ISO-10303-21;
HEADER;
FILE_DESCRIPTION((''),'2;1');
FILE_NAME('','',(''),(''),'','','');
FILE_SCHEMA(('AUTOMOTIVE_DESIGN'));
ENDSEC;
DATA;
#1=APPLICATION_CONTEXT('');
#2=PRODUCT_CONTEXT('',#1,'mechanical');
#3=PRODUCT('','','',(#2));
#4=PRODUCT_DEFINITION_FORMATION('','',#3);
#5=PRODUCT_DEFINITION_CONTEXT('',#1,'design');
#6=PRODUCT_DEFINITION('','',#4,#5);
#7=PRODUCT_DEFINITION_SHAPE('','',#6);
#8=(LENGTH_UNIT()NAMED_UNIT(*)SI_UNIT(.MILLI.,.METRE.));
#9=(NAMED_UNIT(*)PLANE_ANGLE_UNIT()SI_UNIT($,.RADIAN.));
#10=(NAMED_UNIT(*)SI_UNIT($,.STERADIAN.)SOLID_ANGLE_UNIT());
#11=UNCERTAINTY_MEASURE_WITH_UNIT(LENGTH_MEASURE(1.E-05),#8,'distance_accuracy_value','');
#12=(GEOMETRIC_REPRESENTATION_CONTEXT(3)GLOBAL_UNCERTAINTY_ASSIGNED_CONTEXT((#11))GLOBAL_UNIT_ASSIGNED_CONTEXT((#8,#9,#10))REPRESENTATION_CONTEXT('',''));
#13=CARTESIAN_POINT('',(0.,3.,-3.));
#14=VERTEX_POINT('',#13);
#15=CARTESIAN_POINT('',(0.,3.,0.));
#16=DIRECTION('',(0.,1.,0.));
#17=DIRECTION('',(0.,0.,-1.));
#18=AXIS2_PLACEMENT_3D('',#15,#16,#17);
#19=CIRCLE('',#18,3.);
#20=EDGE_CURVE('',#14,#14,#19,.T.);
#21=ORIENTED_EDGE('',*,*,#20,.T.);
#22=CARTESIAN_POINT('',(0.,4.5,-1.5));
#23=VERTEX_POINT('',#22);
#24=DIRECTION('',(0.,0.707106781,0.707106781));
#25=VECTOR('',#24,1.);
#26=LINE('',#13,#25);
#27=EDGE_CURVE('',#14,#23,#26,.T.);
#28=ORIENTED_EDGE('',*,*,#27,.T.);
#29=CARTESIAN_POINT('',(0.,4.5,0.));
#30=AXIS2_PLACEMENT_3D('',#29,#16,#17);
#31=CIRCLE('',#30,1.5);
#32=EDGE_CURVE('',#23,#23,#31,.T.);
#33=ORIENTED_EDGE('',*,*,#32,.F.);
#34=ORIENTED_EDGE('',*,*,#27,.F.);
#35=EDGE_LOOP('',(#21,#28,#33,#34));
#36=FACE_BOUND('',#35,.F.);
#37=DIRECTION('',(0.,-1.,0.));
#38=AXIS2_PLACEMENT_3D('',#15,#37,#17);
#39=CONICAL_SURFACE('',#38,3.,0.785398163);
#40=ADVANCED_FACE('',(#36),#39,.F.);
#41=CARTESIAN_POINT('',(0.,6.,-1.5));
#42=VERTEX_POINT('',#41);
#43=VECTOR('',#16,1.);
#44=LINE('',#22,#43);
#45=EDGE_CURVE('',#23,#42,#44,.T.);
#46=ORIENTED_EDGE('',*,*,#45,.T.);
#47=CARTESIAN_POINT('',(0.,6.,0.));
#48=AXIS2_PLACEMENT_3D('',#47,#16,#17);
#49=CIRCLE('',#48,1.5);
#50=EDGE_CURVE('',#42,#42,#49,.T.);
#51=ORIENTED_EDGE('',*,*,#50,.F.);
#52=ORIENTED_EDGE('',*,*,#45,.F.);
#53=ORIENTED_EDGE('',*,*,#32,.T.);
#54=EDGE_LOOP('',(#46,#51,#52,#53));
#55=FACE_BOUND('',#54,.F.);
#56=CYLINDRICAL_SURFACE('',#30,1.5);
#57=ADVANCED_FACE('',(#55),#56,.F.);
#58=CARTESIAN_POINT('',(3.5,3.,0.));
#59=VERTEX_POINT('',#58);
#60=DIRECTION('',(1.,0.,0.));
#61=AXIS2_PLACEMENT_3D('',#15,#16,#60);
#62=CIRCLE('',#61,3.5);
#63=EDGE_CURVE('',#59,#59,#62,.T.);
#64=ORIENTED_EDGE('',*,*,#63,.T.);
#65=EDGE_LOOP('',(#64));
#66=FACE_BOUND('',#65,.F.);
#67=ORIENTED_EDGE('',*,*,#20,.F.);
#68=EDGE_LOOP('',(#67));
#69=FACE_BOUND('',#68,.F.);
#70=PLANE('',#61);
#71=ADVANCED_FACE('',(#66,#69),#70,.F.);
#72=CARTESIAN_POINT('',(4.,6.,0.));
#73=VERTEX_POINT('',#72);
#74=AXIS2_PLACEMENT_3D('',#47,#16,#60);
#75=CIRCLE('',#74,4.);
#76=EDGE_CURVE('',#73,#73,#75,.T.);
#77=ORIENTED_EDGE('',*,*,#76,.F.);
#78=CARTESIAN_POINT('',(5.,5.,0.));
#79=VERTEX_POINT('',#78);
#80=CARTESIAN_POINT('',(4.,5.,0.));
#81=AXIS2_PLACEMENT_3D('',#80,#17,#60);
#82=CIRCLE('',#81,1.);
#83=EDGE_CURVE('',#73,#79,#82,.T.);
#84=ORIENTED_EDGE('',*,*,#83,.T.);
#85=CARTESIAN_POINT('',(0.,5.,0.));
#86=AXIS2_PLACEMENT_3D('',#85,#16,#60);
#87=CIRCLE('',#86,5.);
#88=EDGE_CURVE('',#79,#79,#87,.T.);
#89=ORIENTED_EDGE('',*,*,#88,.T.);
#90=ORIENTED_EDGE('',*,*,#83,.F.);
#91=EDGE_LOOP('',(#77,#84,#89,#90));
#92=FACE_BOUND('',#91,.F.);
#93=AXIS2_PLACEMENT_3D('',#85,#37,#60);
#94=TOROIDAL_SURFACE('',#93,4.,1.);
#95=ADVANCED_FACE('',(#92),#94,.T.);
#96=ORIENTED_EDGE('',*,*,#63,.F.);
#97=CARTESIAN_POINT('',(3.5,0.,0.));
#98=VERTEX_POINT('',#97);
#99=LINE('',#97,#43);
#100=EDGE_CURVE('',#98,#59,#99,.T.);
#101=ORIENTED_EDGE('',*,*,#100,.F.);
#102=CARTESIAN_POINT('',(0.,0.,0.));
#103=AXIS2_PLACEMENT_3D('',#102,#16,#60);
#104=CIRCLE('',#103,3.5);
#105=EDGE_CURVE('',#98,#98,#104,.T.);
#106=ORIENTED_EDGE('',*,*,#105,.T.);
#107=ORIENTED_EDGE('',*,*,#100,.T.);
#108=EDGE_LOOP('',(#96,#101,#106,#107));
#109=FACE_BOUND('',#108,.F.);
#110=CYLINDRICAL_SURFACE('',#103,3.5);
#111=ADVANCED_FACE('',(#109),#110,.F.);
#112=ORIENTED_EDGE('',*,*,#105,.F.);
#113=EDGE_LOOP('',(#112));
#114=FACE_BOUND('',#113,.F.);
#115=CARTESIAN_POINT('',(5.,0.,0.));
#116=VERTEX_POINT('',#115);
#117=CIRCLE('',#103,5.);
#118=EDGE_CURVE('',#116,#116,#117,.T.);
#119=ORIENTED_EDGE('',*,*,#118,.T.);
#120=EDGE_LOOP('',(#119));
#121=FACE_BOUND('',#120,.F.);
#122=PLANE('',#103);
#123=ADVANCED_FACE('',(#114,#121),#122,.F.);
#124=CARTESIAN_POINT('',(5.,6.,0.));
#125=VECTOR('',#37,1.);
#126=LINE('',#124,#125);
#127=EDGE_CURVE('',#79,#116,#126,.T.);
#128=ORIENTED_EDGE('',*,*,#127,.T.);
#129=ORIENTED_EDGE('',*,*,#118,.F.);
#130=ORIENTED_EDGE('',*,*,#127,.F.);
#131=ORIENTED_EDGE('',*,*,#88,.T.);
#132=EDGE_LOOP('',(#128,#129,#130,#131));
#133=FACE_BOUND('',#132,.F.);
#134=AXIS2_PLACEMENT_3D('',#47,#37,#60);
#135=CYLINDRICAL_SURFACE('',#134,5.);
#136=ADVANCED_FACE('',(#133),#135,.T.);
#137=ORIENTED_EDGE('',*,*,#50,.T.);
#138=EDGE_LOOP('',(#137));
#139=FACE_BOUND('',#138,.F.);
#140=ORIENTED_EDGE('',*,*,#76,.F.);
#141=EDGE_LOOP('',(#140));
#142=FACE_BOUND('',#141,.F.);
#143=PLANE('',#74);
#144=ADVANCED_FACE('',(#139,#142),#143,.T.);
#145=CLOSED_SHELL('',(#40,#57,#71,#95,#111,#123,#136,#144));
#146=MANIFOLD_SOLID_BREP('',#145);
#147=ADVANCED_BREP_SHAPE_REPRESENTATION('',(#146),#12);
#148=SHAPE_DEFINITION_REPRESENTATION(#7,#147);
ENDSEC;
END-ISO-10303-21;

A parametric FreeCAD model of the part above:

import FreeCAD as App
import Part
import Sketcher
from FreeCAD import Vector
Q = App.Units.Quantity


def edges_at(feature, points):
    """Names of the edges that pass closest to the given points."""
    edges = feature.Shape.Edges
    near = lambda p: min(range(len(edges)), key=lambda i: edges[i].distToShape(Part.Vertex(*p))[0])
    return sorted({f"Edge{near(p) + 1}" for p in points})


def add_polygon(sketch, points):
    """Adds a closed chain of lines whose ends are joined by coincident constraints."""
    first, n = sketch.GeometryCount, len(points)
    for a, b in zip(points, points[1:] + points[:1]):
        sketch.addGeometry(Part.LineSegment(App.Vector(*a, 0), App.Vector(*b, 0)), False)
    for i in range(n):
        sketch.addConstraint(Sketcher.Constraint("Coincident", first + i, 2, first + (i + 1) % n, 1))

doc = App.newDocument("Part")
params = doc.addObject("Spreadsheet::Sheet", "Params")
for row, (alias, value) in enumerate([
    ("sketch1_height", "3 mm"),
    ("sketch1_width", "5 mm"),
    ("sketch1_width2", "3.5 mm"),
    ("revolution_angle", "360 deg"),
    ("sketch2_diameter", "3 mm"),
    ("hole_diameter", "3 mm"),
    ("hole_depth", "3 mm"),
    ("hole_csink_diameter", "6 mm"),
    ("fillet_radius", "1 mm"),
], start=1):
    params.set(f"A{row}", alias)
    params.set(f"B{row}", "=" + value)
    params.setAlias(f"B{row}", alias)

body = doc.addObject("PartDesign::Body", "Body")

# Sketch on XY plane
sketch1 = doc.addObject("Sketcher::SketchObject", "Sketch")
body.addObject(sketch1)
sketch1.AttachmentSupport = (doc.XY_Plane, [""])
sketch1.MapMode = "FlatFace"
add_polygon(sketch1, [(0, 6), (0, 3), (3.5, 3), (3.5, 0), (5, 0), (5, 6)])  # lines 0-5
sketch1.addConstraint([
    Sketcher.Constraint("Vertical", 0),
    Sketcher.Constraint("Horizontal", 1),
    Sketcher.Constraint("Vertical", 2),
    Sketcher.Constraint("Horizontal", 3),
    Sketcher.Constraint("Vertical", 4),
    Sketcher.Constraint("Horizontal", 5),
    Sketcher.Constraint("PointOnObject", 0, 2, -2),
    Sketcher.Constraint("PointOnObject", 2, 2, -1),
    Sketcher.Constraint("Equal", 0, 2),
    Sketcher.Constraint("DistanceY", 0, 2, 0, 1, Q("3 mm")),
    Sketcher.Constraint("DistanceX", 5, 2, 5, 1, Q("5 mm")),
    Sketcher.Constraint("DistanceX", 1, 1, 1, 2, Q("3.5 mm")),
])
sketch1.setExpression("Constraints[15]", "Params.sketch1_height")
sketch1.setExpression("Constraints[16]", "Params.sketch1_width")
sketch1.setExpression("Constraints[17]", "Params.sketch1_width2")
revolution = doc.addObject("PartDesign::Revolution", "Revolution")
body.addObject(revolution)
revolution.Profile = sketch1
revolution.ReferenceAxis = (sketch1, ["V_Axis"])
revolution.setExpression("Angle", "Params.revolution_angle")

# Sketch on XZ plane
sketch2 = doc.addObject("Sketcher::SketchObject", "Sketch001")
body.addObject(sketch2)
sketch2.AttachmentSupport = (doc.XZ_Plane, [""])
sketch2.MapMode = "FlatFace"
sketch2.AttachmentOffset = App.Placement(Vector(0, 0, -3), App.Rotation())
sketch2.addGeometry(Part.Circle(Vector(0, 0, 0), Vector(0, 0, 1), 1.5), False)
sketch2.addConstraint([
    Sketcher.Constraint("Coincident", 0, 3, -1, 1),
    Sketcher.Constraint("Diameter", 0, Q("3 mm")),
])
sketch2.setExpression("Constraints[1]", "Params.sketch2_diameter")
doc.recompute()
hole = doc.addObject("PartDesign::Hole", "Hole")
body.addObject(hole)
hole.Profile = sketch2
hole.ThreadType = "None"
hole.setExpression("Diameter", "Params.hole_diameter")
hole.DepthType = "Dimension"
hole.setExpression("Depth", "Params.hole_depth")
hole.DrillPoint = "Flat"
hole.HoleCutType = "Countersink"
hole.setExpression("HoleCutDiameter", "Params.hole_csink_diameter")
hole.HoleCutCountersinkAngle = 90
doc.recompute()

fillet = doc.addObject("PartDesign::Fillet", "Fillet")
body.addObject(fillet)
fillet.Base = (hole, edges_at(hole, [(-5, 6, 0)]))
fillet.setExpression("Radius", "Params.fillet_radius")

doc.recompute()
